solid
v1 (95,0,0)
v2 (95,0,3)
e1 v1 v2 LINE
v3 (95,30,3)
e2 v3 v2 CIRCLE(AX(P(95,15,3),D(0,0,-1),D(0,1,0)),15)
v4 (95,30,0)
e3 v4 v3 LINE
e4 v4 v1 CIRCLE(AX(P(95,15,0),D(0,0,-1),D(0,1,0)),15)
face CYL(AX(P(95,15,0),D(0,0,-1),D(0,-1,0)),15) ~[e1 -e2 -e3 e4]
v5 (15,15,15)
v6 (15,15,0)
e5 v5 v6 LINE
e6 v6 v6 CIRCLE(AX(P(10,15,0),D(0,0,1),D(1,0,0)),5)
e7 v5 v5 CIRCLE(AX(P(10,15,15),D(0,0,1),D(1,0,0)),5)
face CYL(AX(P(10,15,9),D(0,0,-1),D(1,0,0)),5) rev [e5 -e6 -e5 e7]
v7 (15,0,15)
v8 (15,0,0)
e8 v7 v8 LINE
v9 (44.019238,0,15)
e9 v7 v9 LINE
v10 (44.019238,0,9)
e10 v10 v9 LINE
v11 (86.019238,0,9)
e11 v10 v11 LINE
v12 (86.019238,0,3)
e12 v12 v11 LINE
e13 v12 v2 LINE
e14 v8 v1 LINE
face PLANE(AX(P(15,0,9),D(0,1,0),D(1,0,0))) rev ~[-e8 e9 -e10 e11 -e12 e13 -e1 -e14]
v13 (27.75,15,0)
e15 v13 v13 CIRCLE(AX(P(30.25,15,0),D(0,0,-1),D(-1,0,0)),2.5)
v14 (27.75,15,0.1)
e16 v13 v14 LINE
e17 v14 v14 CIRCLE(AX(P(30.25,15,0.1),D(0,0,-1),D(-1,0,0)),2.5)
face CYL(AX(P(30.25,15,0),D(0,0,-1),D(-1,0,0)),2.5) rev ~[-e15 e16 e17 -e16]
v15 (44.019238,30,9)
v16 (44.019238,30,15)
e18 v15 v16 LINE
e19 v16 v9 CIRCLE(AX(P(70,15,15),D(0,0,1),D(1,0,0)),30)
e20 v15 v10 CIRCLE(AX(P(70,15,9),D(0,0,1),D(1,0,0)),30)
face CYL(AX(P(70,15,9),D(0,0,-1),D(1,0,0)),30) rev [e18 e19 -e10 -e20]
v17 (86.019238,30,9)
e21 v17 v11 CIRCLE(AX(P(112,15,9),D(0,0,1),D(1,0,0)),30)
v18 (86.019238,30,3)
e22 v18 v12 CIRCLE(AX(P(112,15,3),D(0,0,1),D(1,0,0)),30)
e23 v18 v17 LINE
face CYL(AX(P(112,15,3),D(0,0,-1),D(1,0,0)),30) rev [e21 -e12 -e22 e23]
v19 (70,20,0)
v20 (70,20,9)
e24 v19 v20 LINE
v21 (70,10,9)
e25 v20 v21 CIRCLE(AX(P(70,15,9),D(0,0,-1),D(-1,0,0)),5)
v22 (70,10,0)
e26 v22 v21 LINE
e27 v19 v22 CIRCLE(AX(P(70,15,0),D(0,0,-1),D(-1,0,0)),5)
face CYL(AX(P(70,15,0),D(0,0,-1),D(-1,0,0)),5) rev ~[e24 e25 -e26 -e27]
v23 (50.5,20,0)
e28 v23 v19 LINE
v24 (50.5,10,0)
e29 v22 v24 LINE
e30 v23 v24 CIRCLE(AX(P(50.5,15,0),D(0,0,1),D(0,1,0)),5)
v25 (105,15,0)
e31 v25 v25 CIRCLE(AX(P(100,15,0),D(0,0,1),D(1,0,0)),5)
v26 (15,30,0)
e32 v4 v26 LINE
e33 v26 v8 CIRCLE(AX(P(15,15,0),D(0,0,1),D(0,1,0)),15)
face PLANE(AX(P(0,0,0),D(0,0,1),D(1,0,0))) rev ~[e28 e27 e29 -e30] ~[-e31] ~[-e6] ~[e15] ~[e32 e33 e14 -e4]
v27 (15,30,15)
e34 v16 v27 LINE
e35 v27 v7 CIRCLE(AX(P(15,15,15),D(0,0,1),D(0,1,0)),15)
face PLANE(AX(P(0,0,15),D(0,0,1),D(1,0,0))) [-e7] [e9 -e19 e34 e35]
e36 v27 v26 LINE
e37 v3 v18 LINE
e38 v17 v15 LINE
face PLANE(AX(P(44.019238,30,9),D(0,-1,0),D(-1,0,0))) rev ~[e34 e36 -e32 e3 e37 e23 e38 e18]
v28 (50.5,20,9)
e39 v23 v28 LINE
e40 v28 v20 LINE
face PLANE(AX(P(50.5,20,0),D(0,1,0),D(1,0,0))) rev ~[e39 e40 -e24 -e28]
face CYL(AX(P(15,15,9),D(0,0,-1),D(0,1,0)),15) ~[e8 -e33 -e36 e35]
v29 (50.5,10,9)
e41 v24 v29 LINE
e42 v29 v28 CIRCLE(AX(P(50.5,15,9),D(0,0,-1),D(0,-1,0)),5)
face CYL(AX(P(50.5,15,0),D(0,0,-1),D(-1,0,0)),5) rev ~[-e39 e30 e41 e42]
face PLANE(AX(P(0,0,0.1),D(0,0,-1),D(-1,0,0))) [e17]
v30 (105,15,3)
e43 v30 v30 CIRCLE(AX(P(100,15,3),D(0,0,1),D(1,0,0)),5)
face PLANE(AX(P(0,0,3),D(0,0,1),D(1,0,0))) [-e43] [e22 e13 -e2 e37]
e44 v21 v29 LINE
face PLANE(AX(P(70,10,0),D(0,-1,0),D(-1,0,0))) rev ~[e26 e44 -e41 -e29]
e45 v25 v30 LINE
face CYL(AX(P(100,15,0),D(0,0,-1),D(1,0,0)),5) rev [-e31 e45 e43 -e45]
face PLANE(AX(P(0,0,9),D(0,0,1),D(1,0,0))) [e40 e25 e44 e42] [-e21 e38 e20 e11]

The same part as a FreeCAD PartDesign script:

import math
import FreeCAD as App
import Part
import Sketcher

V = App.Vector
Q = App.Units.Quantity

doc = App.newDocument("Part")
body = doc.addObject("PartDesign::Body", "Body")

# Sketch on XY plane
sketch1 = doc.addObject("Sketcher::SketchObject", "Sketch")
body.addObject(sketch1)
sketch1.AttachmentSupport = (doc.XY_Plane, [""])
sketch1.MapMode = "FlatFace"
sketch1.addGeometry(Part.ArcOfCircle(Part.Circle(V(15, 15, 0), V(0, 0, 1), 15), math.radians(90), math.radians(270)), False)
sketch1.addGeometry(Part.LineSegment(V(15, 0, 0), V(95, 0, 0)), False)
sketch1.addGeometry(Part.ArcOfCircle(Part.Circle(V(95, 15, 0), V(0, 0, 1), 15), math.radians(-90), math.radians(90)), False)
sketch1.addGeometry(Part.LineSegment(V(95, 30, 0), V(15, 30, 0)), False)
sketch1.addGeometry(Part.Circle(V(10, 15, 0), V(0, 0, 1), 5), False)
sketch1.addGeometry(Part.Circle(V(100, 15, 0), V(0, 0, 1), 5), False)
sketch1.addConstraint(Sketcher.Constraint("Tangent", 0, 2, 1, 1))
sketch1.addConstraint(Sketcher.Constraint("Tangent", 1, 2, 2, 1))
sketch1.addConstraint(Sketcher.Constraint("Tangent", 2, 2, 3, 1))
sketch1.addConstraint(Sketcher.Constraint("Tangent", 3, 2, 0, 1))
sketch1.addConstraint(Sketcher.Constraint("Horizontal", 1))
sketch1.addConstraint(Sketcher.Constraint("Horizontal", 3))
sketch1.addConstraint(Sketcher.Constraint("Equal", 4, 5))
sketch1.addConstraint(Sketcher.Constraint("PointOnObject", 0, 2, -1))
sketch1.addConstraint(Sketcher.Constraint("Horizontal", 2, 3, 4, 3))
sketch1.addConstraint(Sketcher.Constraint("Horizontal", 4, 3, 5, 3))
sketch1.addConstraint(Sketcher.Constraint("Diameter", 4, Q("10 mm")))
sketch1.addConstraint(Sketcher.Constraint("Radius", 0, Q("15 mm")))
sketch1.addConstraint(Sketcher.Constraint("DistanceX", -1, 1, 0, 3, Q("15 mm")))
sketch1.addConstraint(Sketcher.Constraint("DistanceX", -1, 1, 4, 3, Q("10 mm")))
sketch1.addConstraint(Sketcher.Constraint("DistanceX", 4, 3, 5, 3, Q("90 mm")))
sketch1.addConstraint(Sketcher.Constraint("DistanceX", 1, 1, 1, 2, Q("80 mm")))
pad1 = doc.addObject("PartDesign::Pad", "Pad")
body.addObject(pad1)
pad1.Profile = sketch1
pad1.Length = 3

# Sketch on XY plane
sketch2 = doc.addObject("Sketcher::SketchObject", "Sketch001")
body.addObject(sketch2)
sketch2.AttachmentSupport = (doc.XY_Plane, [""])
sketch2.MapMode = "FlatFace"
sketch2.AttachmentOffset = App.Placement(V(0, 0, 3), App.Rotation())
sketch2.addGeometry(Part.LineSegment(V(15, 0, 0), V(86.019238, 0, 0)), False)
sketch2.addGeometry(Part.ArcOfCircle(Part.Circle(V(112, 15, 0), V(0, 0, 1), 30), math.radians(150), math.radians(210)), False)
sketch2.addGeometry(Part.LineSegment(V(86.019238, 30, 0), V(15, 30, 0)), False)
sketch2.addGeometry(Part.ArcOfCircle(Part.Circle(V(15, 15, 0), V(0, 0, 1), 15), math.radians(90), math.radians(270)), False)
sketch2.addGeometry(Part.Circle(V(10, 15, 0), V(0, 0, 1), 5), False)
sketch2.addConstraint(Sketcher.Constraint("Coincident", 0, 2, 1, 2))
sketch2.addConstraint(Sketcher.Constraint("Coincident", 1, 1, 2, 1))
sketch2.addConstraint(Sketcher.Constraint("Tangent", 2, 2, 3, 1))
sketch2.addConstraint(Sketcher.Constraint("Tangent", 3, 2, 0, 1))
sketch2.addConstraint(Sketcher.Constraint("Horizontal", 0))
sketch2.addConstraint(Sketcher.Constraint("Horizontal", 2))
sketch2.addConstraint(Sketcher.Constraint("PointOnObject", 0, 2, -1))
sketch2.addConstraint(Sketcher.Constraint("Horizontal", 1, 3, 3, 3))
sketch2.addConstraint(Sketcher.Constraint("Horizontal", 3, 3, 4, 3))
sketch2.addConstraint(Sketcher.Constraint("Radius", 1, Q("30 mm")))
sketch2.addConstraint(Sketcher.Constraint("Diameter", 4, Q("10 mm")))
sketch2.addConstraint(Sketcher.Constraint("Radius", 3, Q("15 mm")))
sketch2.addConstraint(Sketcher.Constraint("DistanceX", -1, 1, 1, 3, Q("112 mm")))
sketch2.addConstraint(Sketcher.Constraint("DistanceX", -1, 1, 3, 3, Q("15 mm")))
sketch2.addConstraint(Sketcher.Constraint("DistanceX", -1, 1, 4, 3, Q("10 mm")))
pad2 = doc.addObject("PartDesign::Pad", "Pad001")
body.addObject(pad2)
pad2.Profile = sketch2
pad2.Length = 6

# Sketch on XY plane
sketch3 = doc.addObject("Sketcher::SketchObject", "Sketch002")
body.addObject(sketch3)
sketch3.AttachmentSupport = (doc.XY_Plane, [""])
sketch3.MapMode = "FlatFace"
sketch3.addGeometry(Part.ArcOfCircle(Part.Circle(V(50.5, 15, 0), V(0, 0, 1), 5), math.radians(90), math.radians(270)), False)
sketch3.addGeometry(Part.LineSegment(V(50.5, 20, 0), V(70, 20, 0)), False)
sketch3.addGeometry(Part.ArcOfCircle(Part.Circle(V(70, 15, 0), V(0, 0, 1), 5), math.radians(-90), math.radians(90)), False)
sketch3.addGeometry(Part.LineSegment(V(70, 10, 0), V(50.5, 10, 0)), False)
sketch3.addConstraint(Sketcher.Constraint("Tangent", 0, 1, 1, 1))
sketch3.addConstraint(Sketcher.Constraint("Tangent", 1, 2, 2, 2))
sketch3.addConstraint(Sketcher.Constraint("Tangent", 2, 1, 3, 1))
sketch3.addConstraint(Sketcher.Constraint("Tangent", 3, 2, 0, 2))
sketch3.addConstraint(Sketcher.Constraint("Horizontal", 1))
sketch3.addConstraint(Sketcher.Constraint("Horizontal", 3))
sketch3.addConstraint(Sketcher.Constraint("Radius", 0, Q("5 mm")))
sketch3.addConstraint(Sketcher.Constraint("DistanceY", -1, 1, 2, 1, Q("10 mm")))
sketch3.addConstraint(Sketcher.Constraint("DistanceX", 1, 1, 1, 2, Q("19.5 mm")))
sketch3.addConstraint(Sketcher.Constraint("DistanceX", -1, 1, 2, 3, Q("70 mm")))
pocket1 = doc.addObject("PartDesign::Pocket", "Pocket")
body.addObject(pocket1)
pocket1.Profile = sketch3
pocket1.Length = 9
pocket1.Reversed = True

# Sketch on XY plane
sketch4 = doc.addObject("Sketcher::SketchObject", "Sketch003")
body.addObject(sketch4)
sketch4.AttachmentSupport = (doc.XY_Plane, [""])
sketch4.MapMode = "FlatFace"
sketch4.AttachmentOffset = App.Placement(V(0, 0, 9), App.Rotation())
sketch4.addGeometry(Part.LineSegment(V(15, 0, 0), V(44.019238, 0, 0)), False)
sketch4.addGeometry(Part.ArcOfCircle(Part.Circle(V(70, 15, 0), V(0, 0, 1), 30), math.radians(150), math.radians(210)), False)
sketch4.addGeometry(Part.LineSegment(V(44.019238, 30, 0), V(15, 30, 0)), False)
sketch4.addGeometry(Part.ArcOfCircle(Part.Circle(V(15, 15, 0), V(0, 0, 1), 15), math.radians(90), math.radians(270)), False)
sketch4.addGeometry(Part.Circle(V(10, 15, 0), V(0, 0, 1), 5), False)
sketch4.addConstraint(Sketcher.Constraint("Coincident", 0, 2, 1, 2))
sketch4.addConstraint(Sketcher.Constraint("Coincident", 1, 1, 2, 1))
sketch4.addConstraint(Sketcher.Constraint("Tangent", 2, 2, 3, 1))
sketch4.addConstraint(Sketcher.Constraint("Tangent", 3, 2, 0, 1))
sketch4.addConstraint(Sketcher.Constraint("Horizontal", 0))
sketch4.addConstraint(Sketcher.Constraint("Horizontal", 2))
sketch4.addConstraint(Sketcher.Constraint("PointOnObject", 0, 2, -1))
sketch4.addConstraint(Sketcher.Constraint("Horizontal", 1, 3, 3, 3))
sketch4.addConstraint(Sketcher.Constraint("Horizontal", 3, 3, 4, 3))
sketch4.addConstraint(Sketcher.Constraint("Radius", 1, Q("30 mm")))
sketch4.addConstraint(Sketcher.Constraint("Diameter", 4, Q("10 mm")))
sketch4.addConstraint(Sketcher.Constraint("Radius", 3, Q("15 mm")))
sketch4.addConstraint(Sketcher.Constraint("DistanceX", 4, 3, 1, 3, Q("60 mm")))
sketch4.addConstraint(Sketcher.Constraint("DistanceX", -1, 1, 1, 3, Q("70 mm")))
sketch4.addConstraint(Sketcher.Constraint("DistanceX", -1, 1, 3, 3, Q("15 mm")))
pad3 = doc.addObject("PartDesign::Pad", "Pad002")
body.addObject(pad3)
pad3.Profile = sketch4
pad3.Length = 6

# Sketch on XY plane
sketch5 = doc.addObject("Sketcher::SketchObject", "Sketch004")
body.addObject(sketch5)
sketch5.AttachmentSupport = (doc.XY_Plane, [""])
sketch5.MapMode = "FlatFace"
sketch5.addGeometry(Part.Circle(V(30.25, 15, 0), V(0, 0, 1), 2.5), False)
sketch5.addConstraint(Sketcher.Constraint("Diameter", 0, Q("5 mm")))
sketch5.addConstraint(Sketcher.Constraint("DistanceY", -1, 1, 0, 3, Q("15 mm")))
sketch5.addConstraint(Sketcher.Constraint("DistanceX", -1, 1, 0, 3, Q("30.25 mm")))
pocket2 = doc.addObject("PartDesign::Pocket", "Pocket001")
body.addObject(pocket2)
pocket2.Profile = sketch5
pocket2.Length = 0.1
pocket2.Reversed = True

doc.recompute()
